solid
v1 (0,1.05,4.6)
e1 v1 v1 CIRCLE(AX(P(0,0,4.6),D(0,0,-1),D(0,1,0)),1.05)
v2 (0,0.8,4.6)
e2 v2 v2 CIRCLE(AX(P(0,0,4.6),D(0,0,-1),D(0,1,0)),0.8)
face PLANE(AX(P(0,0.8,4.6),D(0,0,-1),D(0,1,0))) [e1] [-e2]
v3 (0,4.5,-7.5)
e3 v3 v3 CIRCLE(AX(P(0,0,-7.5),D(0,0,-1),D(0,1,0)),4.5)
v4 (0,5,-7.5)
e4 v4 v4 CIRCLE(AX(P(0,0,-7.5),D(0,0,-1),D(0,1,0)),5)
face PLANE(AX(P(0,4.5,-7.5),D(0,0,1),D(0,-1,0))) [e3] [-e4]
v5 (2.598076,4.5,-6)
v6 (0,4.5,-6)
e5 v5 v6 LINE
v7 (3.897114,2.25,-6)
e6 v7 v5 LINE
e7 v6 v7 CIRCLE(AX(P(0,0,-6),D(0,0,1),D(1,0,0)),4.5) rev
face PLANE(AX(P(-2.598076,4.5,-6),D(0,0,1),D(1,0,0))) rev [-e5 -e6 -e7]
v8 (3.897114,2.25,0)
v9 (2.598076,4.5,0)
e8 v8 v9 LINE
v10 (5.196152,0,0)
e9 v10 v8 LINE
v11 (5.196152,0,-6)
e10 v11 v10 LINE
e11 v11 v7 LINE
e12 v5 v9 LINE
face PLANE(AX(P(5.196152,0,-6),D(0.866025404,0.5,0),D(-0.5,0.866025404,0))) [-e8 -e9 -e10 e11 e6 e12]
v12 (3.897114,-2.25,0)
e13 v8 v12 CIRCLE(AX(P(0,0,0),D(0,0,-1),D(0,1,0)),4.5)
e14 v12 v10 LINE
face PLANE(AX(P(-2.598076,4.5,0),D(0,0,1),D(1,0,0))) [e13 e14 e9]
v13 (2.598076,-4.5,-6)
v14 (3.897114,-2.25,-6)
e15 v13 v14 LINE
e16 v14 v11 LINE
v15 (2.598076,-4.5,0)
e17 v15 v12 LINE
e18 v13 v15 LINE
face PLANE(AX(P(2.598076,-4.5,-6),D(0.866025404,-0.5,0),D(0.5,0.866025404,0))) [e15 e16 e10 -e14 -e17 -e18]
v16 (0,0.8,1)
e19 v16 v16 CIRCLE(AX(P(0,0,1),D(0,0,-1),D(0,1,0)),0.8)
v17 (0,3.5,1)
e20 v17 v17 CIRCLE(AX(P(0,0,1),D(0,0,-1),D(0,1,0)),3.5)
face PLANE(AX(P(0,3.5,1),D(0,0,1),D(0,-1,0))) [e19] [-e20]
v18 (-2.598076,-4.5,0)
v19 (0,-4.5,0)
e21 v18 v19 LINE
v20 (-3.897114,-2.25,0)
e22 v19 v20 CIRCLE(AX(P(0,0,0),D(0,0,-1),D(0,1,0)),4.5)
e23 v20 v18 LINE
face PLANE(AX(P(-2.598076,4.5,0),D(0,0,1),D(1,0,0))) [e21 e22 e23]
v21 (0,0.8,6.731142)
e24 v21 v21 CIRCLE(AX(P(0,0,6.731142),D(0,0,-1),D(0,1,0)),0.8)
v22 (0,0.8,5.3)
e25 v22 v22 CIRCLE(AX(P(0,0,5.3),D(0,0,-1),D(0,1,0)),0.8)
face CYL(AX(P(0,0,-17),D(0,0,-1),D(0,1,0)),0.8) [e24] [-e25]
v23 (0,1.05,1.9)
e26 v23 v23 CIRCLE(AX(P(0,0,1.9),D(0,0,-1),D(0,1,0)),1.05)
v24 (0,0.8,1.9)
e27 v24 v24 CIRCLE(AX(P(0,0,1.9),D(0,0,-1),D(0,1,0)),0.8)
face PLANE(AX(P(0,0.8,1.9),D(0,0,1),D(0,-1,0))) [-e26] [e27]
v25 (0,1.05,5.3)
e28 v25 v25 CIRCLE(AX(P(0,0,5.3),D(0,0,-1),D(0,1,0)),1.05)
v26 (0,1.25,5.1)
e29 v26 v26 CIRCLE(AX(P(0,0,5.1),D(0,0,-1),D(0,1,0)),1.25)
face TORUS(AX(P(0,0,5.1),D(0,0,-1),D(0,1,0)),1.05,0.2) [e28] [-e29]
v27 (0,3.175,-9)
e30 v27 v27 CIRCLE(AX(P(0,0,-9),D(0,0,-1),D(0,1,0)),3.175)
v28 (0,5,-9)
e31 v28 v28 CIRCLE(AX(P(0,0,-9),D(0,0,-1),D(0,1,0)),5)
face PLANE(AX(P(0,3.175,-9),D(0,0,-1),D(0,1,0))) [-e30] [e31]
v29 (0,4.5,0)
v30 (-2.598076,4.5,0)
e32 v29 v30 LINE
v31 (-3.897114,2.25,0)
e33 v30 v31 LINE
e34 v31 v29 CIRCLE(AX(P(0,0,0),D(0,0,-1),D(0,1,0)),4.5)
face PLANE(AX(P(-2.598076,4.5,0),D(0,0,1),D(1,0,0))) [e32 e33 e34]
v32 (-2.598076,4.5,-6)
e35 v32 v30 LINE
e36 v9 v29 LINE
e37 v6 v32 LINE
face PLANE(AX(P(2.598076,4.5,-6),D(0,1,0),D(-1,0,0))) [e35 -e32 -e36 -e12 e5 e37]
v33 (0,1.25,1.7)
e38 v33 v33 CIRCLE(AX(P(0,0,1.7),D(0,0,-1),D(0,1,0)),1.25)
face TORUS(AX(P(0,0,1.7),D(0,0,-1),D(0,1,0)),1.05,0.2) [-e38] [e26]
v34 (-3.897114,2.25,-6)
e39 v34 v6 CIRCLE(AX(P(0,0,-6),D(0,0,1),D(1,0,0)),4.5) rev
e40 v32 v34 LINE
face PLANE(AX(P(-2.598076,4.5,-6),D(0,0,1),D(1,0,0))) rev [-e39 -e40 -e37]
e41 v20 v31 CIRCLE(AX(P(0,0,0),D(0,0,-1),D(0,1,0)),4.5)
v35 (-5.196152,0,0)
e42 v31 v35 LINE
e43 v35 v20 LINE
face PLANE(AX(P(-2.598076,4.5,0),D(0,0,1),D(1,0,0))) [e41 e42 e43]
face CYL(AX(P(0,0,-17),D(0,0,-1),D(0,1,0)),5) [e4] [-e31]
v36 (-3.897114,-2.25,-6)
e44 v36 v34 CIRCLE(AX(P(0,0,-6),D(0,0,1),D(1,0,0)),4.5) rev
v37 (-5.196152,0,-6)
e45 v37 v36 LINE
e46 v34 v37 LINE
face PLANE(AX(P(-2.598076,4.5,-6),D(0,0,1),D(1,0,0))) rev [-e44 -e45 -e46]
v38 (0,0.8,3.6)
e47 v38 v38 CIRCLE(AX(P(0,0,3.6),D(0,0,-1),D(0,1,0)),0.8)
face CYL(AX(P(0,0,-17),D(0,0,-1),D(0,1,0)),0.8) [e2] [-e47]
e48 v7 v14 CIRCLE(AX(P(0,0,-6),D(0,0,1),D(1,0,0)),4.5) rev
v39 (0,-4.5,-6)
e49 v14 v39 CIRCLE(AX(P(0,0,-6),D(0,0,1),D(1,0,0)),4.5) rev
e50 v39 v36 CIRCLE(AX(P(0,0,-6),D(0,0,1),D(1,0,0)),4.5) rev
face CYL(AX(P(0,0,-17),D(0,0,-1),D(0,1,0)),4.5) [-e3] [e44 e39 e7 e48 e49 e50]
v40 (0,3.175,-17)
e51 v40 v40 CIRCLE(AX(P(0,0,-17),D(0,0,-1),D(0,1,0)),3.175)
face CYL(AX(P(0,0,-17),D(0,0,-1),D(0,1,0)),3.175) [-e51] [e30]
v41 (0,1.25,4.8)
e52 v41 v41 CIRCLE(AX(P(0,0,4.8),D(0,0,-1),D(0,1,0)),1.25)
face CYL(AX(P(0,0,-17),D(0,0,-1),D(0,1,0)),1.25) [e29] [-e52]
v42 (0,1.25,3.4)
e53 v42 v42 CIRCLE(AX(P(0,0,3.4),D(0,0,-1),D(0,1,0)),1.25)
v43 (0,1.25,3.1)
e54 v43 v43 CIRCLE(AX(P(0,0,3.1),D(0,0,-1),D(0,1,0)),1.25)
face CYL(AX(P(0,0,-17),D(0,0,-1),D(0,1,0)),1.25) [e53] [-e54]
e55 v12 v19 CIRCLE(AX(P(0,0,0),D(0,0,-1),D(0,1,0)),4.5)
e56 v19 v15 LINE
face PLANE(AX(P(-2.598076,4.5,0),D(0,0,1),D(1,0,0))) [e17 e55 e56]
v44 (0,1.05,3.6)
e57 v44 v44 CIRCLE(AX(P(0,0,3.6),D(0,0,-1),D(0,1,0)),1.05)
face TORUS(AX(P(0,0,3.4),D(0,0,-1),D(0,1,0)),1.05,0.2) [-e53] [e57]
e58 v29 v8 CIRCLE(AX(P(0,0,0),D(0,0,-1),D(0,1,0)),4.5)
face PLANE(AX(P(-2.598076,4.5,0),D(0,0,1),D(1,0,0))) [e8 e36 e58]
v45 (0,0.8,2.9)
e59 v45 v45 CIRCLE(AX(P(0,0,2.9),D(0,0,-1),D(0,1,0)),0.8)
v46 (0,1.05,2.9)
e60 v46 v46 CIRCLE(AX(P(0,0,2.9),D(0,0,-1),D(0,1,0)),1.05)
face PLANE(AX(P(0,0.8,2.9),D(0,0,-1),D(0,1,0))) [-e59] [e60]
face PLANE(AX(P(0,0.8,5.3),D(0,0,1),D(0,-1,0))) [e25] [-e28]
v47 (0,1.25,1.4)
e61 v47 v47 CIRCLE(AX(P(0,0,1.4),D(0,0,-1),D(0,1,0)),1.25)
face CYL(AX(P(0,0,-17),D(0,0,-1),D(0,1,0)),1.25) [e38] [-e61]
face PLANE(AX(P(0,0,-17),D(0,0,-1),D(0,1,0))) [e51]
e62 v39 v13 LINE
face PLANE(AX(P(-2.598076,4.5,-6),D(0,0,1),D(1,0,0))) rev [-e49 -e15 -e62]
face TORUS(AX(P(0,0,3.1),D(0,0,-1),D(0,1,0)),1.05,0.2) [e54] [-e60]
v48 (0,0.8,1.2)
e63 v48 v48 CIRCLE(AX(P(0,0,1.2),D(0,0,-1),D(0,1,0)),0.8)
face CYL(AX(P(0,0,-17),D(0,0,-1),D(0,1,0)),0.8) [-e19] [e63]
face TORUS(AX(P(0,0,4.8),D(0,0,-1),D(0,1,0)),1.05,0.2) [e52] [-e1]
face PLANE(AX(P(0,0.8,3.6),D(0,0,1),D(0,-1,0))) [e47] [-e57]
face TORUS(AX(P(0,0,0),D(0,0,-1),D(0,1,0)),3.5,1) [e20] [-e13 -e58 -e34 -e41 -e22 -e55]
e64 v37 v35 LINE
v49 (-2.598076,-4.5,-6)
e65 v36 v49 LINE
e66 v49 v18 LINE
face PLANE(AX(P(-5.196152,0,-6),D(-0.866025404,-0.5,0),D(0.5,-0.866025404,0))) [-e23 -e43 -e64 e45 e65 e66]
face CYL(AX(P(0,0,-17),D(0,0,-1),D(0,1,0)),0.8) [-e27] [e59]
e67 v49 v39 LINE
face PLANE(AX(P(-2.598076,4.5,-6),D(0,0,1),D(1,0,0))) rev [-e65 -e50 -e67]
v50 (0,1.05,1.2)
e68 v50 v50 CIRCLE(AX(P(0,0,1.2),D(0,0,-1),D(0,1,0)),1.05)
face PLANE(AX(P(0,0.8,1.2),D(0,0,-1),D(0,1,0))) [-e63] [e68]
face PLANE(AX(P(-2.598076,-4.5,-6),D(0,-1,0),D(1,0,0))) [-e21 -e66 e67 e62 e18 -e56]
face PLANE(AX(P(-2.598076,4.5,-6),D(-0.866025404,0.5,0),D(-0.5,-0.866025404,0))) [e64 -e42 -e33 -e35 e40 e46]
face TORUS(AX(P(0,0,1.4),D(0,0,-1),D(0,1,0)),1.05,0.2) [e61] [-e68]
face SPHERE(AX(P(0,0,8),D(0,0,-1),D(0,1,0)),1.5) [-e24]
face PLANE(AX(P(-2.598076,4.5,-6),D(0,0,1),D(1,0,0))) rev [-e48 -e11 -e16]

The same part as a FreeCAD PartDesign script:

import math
import FreeCAD as App
import Part
import Sketcher
from FreeCAD import Vector
Q = App.Units.Quantity


def add_polygon(sketch, points):
    """Adds a closed chain of lines whose ends are joined by coincident constraints."""
    first, n = sketch.GeometryCount, len(points)
    for a, b in zip(points, points[1:] + points[:1]):
        sketch.addGeometry(Part.LineSegment(App.Vector(*a, 0), App.Vector(*b, 0)), False)
    for i in range(n):
        sketch.addConstraint(Sketcher.Constraint("Coincident", first + i, 2, first + (i + 1) % n, 1))

doc = App.newDocument("Part")
body = doc.addObject("PartDesign::Body", "Body")

sketch1 = body.newObject("Sketcher::SketchObject", "Sketch")
sketch1.AttachmentSupport = (doc.getObject("YZ_Plane"), [""])
sketch1.MapMode = "FlatFace"
sketch1.addGeometry(Part.LineSegment(Vector(0, -17, 0), Vector(3.17, -17, 0)), False)
sketch1.addGeometry(Part.LineSegment(Vector(3.17, -17, 0), Vector(3.17, -9, 0)), False)
sketch1.addGeometry(Part.LineSegment(Vector(3.17, -9, 0), Vector(5, -9, 0)), False)
sketch1.addGeometry(Part.LineSegment(Vector(5, -9, 0), Vector(5, -7.5, 0)), False)
sketch1.addGeometry(Part.LineSegment(Vector(5, -7.5, 0), Vector(4.5, -7.5, 0)), False)
sketch1.addGeometry(Part.LineSegment(Vector(4.5, -7.5, 0), Vector(4.5, 0, 0)), False)
sketch1.addGeometry(Part.ArcOfCircle(Part.Circle(Vector(3.5, 0, 0), Vector(0, 0, 1), 1), math.radians(0), math.radians(90)), False)
sketch1.addGeometry(Part.LineSegment(Vector(3.5, 1, 0), Vector(0.8, 1, 0)), False)
sketch1.addGeometry(Part.LineSegment(Vector(0.8, 1, 0), Vector(0.8, 1.2, 0)), False)
sketch1.addGeometry(Part.LineSegment(Vector(0.8, 1.2, 0), Vector(1.05, 1.2, 0)), False)
sketch1.addGeometry(Part.ArcOfCircle(Part.Circle(Vector(1.05, 1.4, 0), Vector(0, 0, 1), 0.2), math.radians(-90), math.radians(0)), False)
sketch1.addGeometry(Part.LineSegment(Vector(1.25, 1.4, 0), Vector(1.25, 1.7, 0)), False)
sketch1.addGeometry(Part.ArcOfCircle(Part.Circle(Vector(1.05, 1.7, 0), Vector(0, 0, 1), 0.2), math.radians(0), math.radians(90)), False)
sketch1.addGeometry(Part.LineSegment(Vector(1.05, 1.9, 0), Vector(0.8, 1.9, 0)), False)
sketch1.addGeometry(Part.LineSegment(Vector(0.8, 1.9, 0), Vector(0.8, 2.9, 0)), False)
sketch1.addGeometry(Part.LineSegment(Vector(0.8, 2.9, 0), Vector(1.05, 2.9, 0)), False)
sketch1.addGeometry(Part.ArcOfCircle(Part.Circle(Vector(1.05, 3.1, 0), Vector(0, 0, 1), 0.2), math.radians(-90), math.radians(0)), False)
sketch1.addGeometry(Part.LineSegment(Vector(1.25, 3.1, 0), Vector(1.25, 3.4, 0)), False)
sketch1.addGeometry(Part.ArcOfCircle(Part.Circle(Vector(1.05, 3.4, 0), Vector(0, 0, 1), 0.2), math.radians(0), math.radians(90)), False)
sketch1.addGeometry(Part.LineSegment(Vector(1.05, 3.6, 0), Vector(0.8, 3.6, 0)), False)
sketch1.addGeometry(Part.LineSegment(Vector(0.8, 3.6, 0), Vector(0.8, 4.6, 0)), False)
sketch1.addGeometry(Part.LineSegment(Vector(0.8, 4.6, 0), Vector(1.05, 4.6, 0)), False)
sketch1.addGeometry(Part.ArcOfCircle(Part.Circle(Vector(1.05, 4.8, 0), Vector(0, 0, 1), 0.2), math.radians(-90), math.radians(0)), False)
sketch1.addGeometry(Part.LineSegment(Vector(1.25, 4.8, 0), Vector(1.25, 5.1, 0)), False)
sketch1.addGeometry(Part.ArcOfCircle(Part.Circle(Vector(1.05, 5.1, 0), Vector(0, 0, 1), 0.2), math.radians(0), math.radians(90)), False)
sketch1.addGeometry(Part.LineSegment(Vector(1.05, 5.3, 0), Vector(0.8, 5.3, 0)), False)
sketch1.addGeometry(Part.LineSegment(Vector(0.8, 5.3, 0), Vector(0.8, 6.73, 0)), False)
sketch1.addGeometry(Part.ArcOfCircle(Part.Circle(Vector(0, 8, 0), Vector(0, 0, 1), 1.5), math.radians(-58), math.radians(90)), False)
sketch1.addGeometry(Part.LineSegment(Vector(0, 9.5, 0), Vector(0, -17, 0)), False)
sketch1.addConstraint(Sketcher.Constraint("Coincident", 0, 2, 1, 1))
sketch1.addConstraint(Sketcher.Constraint("Coincident", 1, 2, 2, 1))
sketch1.addConstraint(Sketcher.Constraint("Coincident", 2, 2, 3, 1))
sketch1.addConstraint(Sketcher.Constraint("Coincident", 3, 2, 4, 1))
sketch1.addConstraint(Sketcher.Constraint("Coincident", 4, 2, 5, 1))
sketch1.addConstraint(Sketcher.Constraint("Tangent", 5, 2, 6, 1))
sketch1.addConstraint(Sketcher.Constraint("Tangent", 6, 2, 7, 1))
sketch1.addConstraint(Sketcher.Constraint("Coincident", 7, 2, 8, 1))
sketch1.addConstraint(Sketcher.Constraint("Coincident", 8, 2, 9, 1))
sketch1.addConstraint(Sketcher.Constraint("Tangent", 9, 2, 10, 1))
sketch1.addConstraint(Sketcher.Constraint("Tangent", 10, 2, 11, 1))
sketch1.addConstraint(Sketcher.Constraint("Tangent", 11, 2, 12, 1))
sketch1.addConstraint(Sketcher.Constraint("Tangent", 12, 2, 13, 1))
sketch1.addConstraint(Sketcher.Constraint("Coincident", 13, 2, 14, 1))
sketch1.addConstraint(Sketcher.Constraint("Coincident", 14, 2, 15, 1))
sketch1.addConstraint(Sketcher.Constraint("Tangent", 15, 2, 16, 1))
sketch1.addConstraint(Sketcher.Constraint("Tangent", 16, 2, 17, 1))
sketch1.addConstraint(Sketcher.Constraint("Tangent", 17, 2, 18, 1))
sketch1.addConstraint(Sketcher.Constraint("Tangent", 18, 2, 19, 1))
sketch1.addConstraint(Sketcher.Constraint("Coincident", 19, 2, 20, 1))
sketch1.addConstraint(Sketcher.Constraint("Coincident", 20, 2, 21, 1))
sketch1.addConstraint(Sketcher.Constraint("Tangent", 21, 2, 22, 1))
sketch1.addConstraint(Sketcher.Constraint("Tangent", 22, 2, 23, 1))
sketch1.addConstraint(Sketcher.Constraint("Tangent", 23, 2, 24, 1))
sketch1.addConstraint(Sketcher.Constraint("Tangent", 24, 2, 25, 1))
sketch1.addConstraint(Sketcher.Constraint("Coincident", 25, 2, 26, 1))
sketch1.addConstraint(Sketcher.Constraint("Coincident", 26, 2, 27, 1))
sketch1.addConstraint(Sketcher.Constraint("Coincident", 27, 2, 28, 1))
sketch1.addConstraint(Sketcher.Constraint("Coincident", 28, 2, 0, 1))
sketch1.addConstraint(Sketcher.Constraint("Horizontal", 0))
sketch1.addConstraint(Sketcher.Constraint("Vertical", 1))
sketch1.addConstraint(Sketcher.Constraint("Horizontal", 2))
sketch1.addConstraint(Sketcher.Constraint("Vertical", 3))
sketch1.addConstraint(Sketcher.Constraint("Horizontal", 4))
sketch1.addConstraint(Sketcher.Constraint("Vertical", 5))
sketch1.addConstraint(Sketcher.Constraint("Horizontal", 7))
sketch1.addConstraint(Sketcher.Constraint("Vertical", 8))
sketch1.addConstraint(Sketcher.Constraint("Horizontal", 9))
sketch1.addConstraint(Sketcher.Constraint("Vertical", 11))
sketch1.addConstraint(Sketcher.Constraint("Horizontal", 13))
sketch1.addConstraint(Sketcher.Constraint("Vertical", 14))
sketch1.addConstraint(Sketcher.Constraint("Horizontal", 15))
sketch1.addConstraint(Sketcher.Constraint("Vertical", 17))
sketch1.addConstraint(Sketcher.Constraint("Horizontal", 19))
sketch1.addConstraint(Sketcher.Constraint("Vertical", 20))
sketch1.addConstraint(Sketcher.Constraint("Horizontal", 21))
sketch1.addConstraint(Sketcher.Constraint("Vertical", 23))
sketch1.addConstraint(Sketcher.Constraint("Horizontal", 25))
sketch1.addConstraint(Sketcher.Constraint("Vertical", 26))
sketch1.addConstraint(Sketcher.Constraint("Vertical", 28))
sketch1.addConstraint(Sketcher.Constraint("Equal", 10, 12))
sketch1.addConstraint(Sketcher.Constraint("Equal", 12, 16))
sketch1.addConstraint(Sketcher.Constraint("Equal", 16, 18))
sketch1.addConstraint(Sketcher.Constraint("Equal", 18, 22))
sketch1.addConstraint(Sketcher.Constraint("Equal", 22, 24))
sketch1.addConstraint(Sketcher.Constraint("PointOnObject", 6, 3, -1))
sketch1.addConstraint(Sketcher.Constraint("PointOnObject", 27, 3, -2))
sketch1.addConstraint(Sketcher.Constraint("PointOnObject", 27, 2, -2))
sketch1.addConstraint(Sketcher.Constraint("Vertical", 12, 3, 16, 3))
sketch1.addConstraint(Sketcher.Constraint("Vertical", 18, 3, 22, 3))
sketch1.addConstraint(Sketcher.Constraint("Vertical", 8, 2, 13, 2))
sketch1.addConstraint(Sketcher.Constraint("Vertical", 14, 2, 19, 2))
sketch1.addConstraint(Sketcher.Constraint("Vertical", 20, 2, 25, 2))
sketch1.addConstraint(Sketcher.Constraint("Equal", 11, 17))
sketch1.addConstraint(Sketcher.Constraint("Equal", 14, 20))
sketch1.addConstraint(Sketcher.Constraint("Equal", 17, 23))
sketch1.addConstraint(Sketcher.Constraint("Radius", 6, Q("1 mm")))
sketch1.addConstraint(Sketcher.Constraint("Radius", 10, Q("0.2 mm")))
sketch1.addConstraint(Sketcher.Constraint("Radius", 27, Q("1.5 mm")))
sketch1.addConstraint(Sketcher.Constraint("DistanceY", 1, 1, 1, 2, Q("8 mm")))
sketch1.addConstraint(Sketcher.Constraint("DistanceY", 14, 1, 14, 2, Q("1 mm")))
sketch1.addConstraint(Sketcher.Constraint("DistanceX", 4, 2, 4, 1, Q("0.5 mm")))
sketch1.addConstraint(Sketcher.Constraint("DistanceX", 7, 2, 7, 1, Q("2.7 mm")))
sketch1.addConstraint(Sketcher.Constraint("DistanceY", 3, 1, 3, 2, Q("1.5 mm")))
sketch1.addConstraint(Sketcher.Constraint("DistanceY", 5, 1, 5, 2, Q("7.5 mm")))
sketch1.addConstraint(Sketcher.Constraint("DistanceY", 8, 1, 8, 2, Q("0.2 mm")))
sketch1.addConstraint(Sketcher.Constraint("DistanceY", 11, 1, 11, 2, Q("0.3 mm")))
sketch1.addConstraint(Sketcher.Constraint("DistanceY", 28, 2, 28, 1, Q("26.5 mm")))
sketch1.addConstraint(Sketcher.Constraint("DistanceX", -1, 1, 2, 2, Q("5 mm")))
sketch1.addConstraint(Sketcher.Constraint("DistanceX", 9, 1, 9, 2, Q("0.25 mm")))
sketch1.addConstraint(Sketcher.Constraint("DistanceX", 0, 1, 0, 2, Q("3.175 mm")))
revolution = body.newObject("PartDesign::Revolution", "Revolution")
revolution.Profile = sketch1
revolution.ReferenceAxis = (sketch1, ["V_Axis"])
revolution.Angle = 360

sketch2 = body.newObject("Sketcher::SketchObject", "Sketch001")
sketch2.AttachmentSupport = (doc.getObject("XY_Plane"), [""])
sketch2.MapMode = "FlatFace"
add_polygon(sketch2, [(-3, 4), (-5, 0), (-3, -4), (3, -4), (5, 0), (3, 4)])
sketch2.addConstraint(Sketcher.Constraint("Horizontal", 2))
sketch2.addConstraint(Sketcher.Constraint("Horizontal", 5))
sketch2.addConstraint(Sketcher.Constraint("Symmetric", 0, 2, 3, 2, -1, 1))
sketch2.addConstraint(Sketcher.Constraint("Symmetric", 1, 2, 4, 2, -1, 1))
sketch2.addConstraint(Sketcher.Constraint("PointOnObject", 0, 2, -1))
sketch2.addConstraint(Sketcher.Constraint("Parallel", 0, 3))
sketch2.addConstraint(Sketcher.Constraint("Vertical", 2, 2, 4, 2))
sketch2.addConstraint(Sketcher.Constraint("Angle", 0, Q("-120 deg")))
sketch2.addConstraint(Sketcher.Constraint("DistanceY", 2, 2, 4, 2, Q("9 mm")))
sketch2.addConstraint(Sketcher.Constraint("DistanceX", 2, 1, 2, 2, Q("5.196152 mm")))
pad1 = body.newObject("PartDesign::Pad", "Pad")
pad1.Profile = sketch2
pad1.Length = 6
pad1.Reversed = True

doc.recompute()
